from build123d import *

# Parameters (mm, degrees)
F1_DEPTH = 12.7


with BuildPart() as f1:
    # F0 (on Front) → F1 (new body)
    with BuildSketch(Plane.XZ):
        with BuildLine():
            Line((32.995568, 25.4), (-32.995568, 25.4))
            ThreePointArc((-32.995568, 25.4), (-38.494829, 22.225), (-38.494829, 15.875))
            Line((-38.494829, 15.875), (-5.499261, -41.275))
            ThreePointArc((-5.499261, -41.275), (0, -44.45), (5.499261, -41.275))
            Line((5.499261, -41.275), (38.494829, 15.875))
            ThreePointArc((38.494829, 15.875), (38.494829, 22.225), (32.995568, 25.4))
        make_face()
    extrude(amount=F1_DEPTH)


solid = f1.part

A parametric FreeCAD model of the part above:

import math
import FreeCAD as App
import Part
import Sketcher
Q = App.Units.Quantity

doc = App.newDocument("Part")
body = doc.addObject("PartDesign::Body", "Body")

sketch1 = doc.addObject("Sketcher::SketchObject", "Sketch")
body.addObject(sketch1)
sketch1.AttachmentSupport = (doc.XZ_Plane, [""])
sketch1.MapMode = "FlatFace"
sketch1.addGeometry([
    Part.LineSegment(App.Vector(33, 25, 0), App.Vector(-33, 25, 0)),
    Part.ArcOfCircle(Part.Circle(App.Vector(-33, 19, 0), App.Vector(0, 0, 1), 6), math.radians(90), math.radians(210)),
    Part.LineSegment(App.Vector(-38, 16, 0), App.Vector(-5, -41, 0)),
    Part.ArcOfCircle(Part.Circle(App.Vector(0, -38, 0), App.Vector(0, 0, 1), 6), math.radians(-150), math.radians(-30)),
    Part.LineSegment(App.Vector(5, -41, 0), App.Vector(38, 16, 0)),
    Part.ArcOfCircle(Part.Circle(App.Vector(33, 19, 0), App.Vector(0, 0, 1), 6), math.radians(-30), math.radians(90)),
], False)
sketch1.addConstraint([
    Sketcher.Constraint("Tangent", 0, 2, 1, 1),
    Sketcher.Constraint("Tangent", 1, 2, 2, 1),
    Sketcher.Constraint("Tangent", 2, 2, 3, 1),
    Sketcher.Constraint("Tangent", 3, 2, 4, 1),
    Sketcher.Constraint("Tangent", 4, 2, 5, 1),
    Sketcher.Constraint("Tangent", 5, 2, 0, 1),
    Sketcher.Constraint("Horizontal", 0),
    Sketcher.Constraint("Equal", 1, 3),
    Sketcher.Constraint("Equal", 3, 5),
    Sketcher.Constraint("Symmetric", 2, 2, 3, 2, -2),
    Sketcher.Constraint("Radius", 1, Q("0.25 in")),
    Sketcher.Constraint("DistanceY", -1, 1, 0, 2, Q("1 in")),
    Sketcher.Constraint("Angle", 2, Q("-60 deg")),
    Sketcher.Constraint("DistanceY", 3, 3, -1, 1, Q("1.5 in")),
])
pad1 = doc.addObject("PartDesign::Pad", "Pad")
body.addObject(pad1)
pad1.Profile = sketch1
pad1.Length = Q("0.5 in")

doc.recompute()
